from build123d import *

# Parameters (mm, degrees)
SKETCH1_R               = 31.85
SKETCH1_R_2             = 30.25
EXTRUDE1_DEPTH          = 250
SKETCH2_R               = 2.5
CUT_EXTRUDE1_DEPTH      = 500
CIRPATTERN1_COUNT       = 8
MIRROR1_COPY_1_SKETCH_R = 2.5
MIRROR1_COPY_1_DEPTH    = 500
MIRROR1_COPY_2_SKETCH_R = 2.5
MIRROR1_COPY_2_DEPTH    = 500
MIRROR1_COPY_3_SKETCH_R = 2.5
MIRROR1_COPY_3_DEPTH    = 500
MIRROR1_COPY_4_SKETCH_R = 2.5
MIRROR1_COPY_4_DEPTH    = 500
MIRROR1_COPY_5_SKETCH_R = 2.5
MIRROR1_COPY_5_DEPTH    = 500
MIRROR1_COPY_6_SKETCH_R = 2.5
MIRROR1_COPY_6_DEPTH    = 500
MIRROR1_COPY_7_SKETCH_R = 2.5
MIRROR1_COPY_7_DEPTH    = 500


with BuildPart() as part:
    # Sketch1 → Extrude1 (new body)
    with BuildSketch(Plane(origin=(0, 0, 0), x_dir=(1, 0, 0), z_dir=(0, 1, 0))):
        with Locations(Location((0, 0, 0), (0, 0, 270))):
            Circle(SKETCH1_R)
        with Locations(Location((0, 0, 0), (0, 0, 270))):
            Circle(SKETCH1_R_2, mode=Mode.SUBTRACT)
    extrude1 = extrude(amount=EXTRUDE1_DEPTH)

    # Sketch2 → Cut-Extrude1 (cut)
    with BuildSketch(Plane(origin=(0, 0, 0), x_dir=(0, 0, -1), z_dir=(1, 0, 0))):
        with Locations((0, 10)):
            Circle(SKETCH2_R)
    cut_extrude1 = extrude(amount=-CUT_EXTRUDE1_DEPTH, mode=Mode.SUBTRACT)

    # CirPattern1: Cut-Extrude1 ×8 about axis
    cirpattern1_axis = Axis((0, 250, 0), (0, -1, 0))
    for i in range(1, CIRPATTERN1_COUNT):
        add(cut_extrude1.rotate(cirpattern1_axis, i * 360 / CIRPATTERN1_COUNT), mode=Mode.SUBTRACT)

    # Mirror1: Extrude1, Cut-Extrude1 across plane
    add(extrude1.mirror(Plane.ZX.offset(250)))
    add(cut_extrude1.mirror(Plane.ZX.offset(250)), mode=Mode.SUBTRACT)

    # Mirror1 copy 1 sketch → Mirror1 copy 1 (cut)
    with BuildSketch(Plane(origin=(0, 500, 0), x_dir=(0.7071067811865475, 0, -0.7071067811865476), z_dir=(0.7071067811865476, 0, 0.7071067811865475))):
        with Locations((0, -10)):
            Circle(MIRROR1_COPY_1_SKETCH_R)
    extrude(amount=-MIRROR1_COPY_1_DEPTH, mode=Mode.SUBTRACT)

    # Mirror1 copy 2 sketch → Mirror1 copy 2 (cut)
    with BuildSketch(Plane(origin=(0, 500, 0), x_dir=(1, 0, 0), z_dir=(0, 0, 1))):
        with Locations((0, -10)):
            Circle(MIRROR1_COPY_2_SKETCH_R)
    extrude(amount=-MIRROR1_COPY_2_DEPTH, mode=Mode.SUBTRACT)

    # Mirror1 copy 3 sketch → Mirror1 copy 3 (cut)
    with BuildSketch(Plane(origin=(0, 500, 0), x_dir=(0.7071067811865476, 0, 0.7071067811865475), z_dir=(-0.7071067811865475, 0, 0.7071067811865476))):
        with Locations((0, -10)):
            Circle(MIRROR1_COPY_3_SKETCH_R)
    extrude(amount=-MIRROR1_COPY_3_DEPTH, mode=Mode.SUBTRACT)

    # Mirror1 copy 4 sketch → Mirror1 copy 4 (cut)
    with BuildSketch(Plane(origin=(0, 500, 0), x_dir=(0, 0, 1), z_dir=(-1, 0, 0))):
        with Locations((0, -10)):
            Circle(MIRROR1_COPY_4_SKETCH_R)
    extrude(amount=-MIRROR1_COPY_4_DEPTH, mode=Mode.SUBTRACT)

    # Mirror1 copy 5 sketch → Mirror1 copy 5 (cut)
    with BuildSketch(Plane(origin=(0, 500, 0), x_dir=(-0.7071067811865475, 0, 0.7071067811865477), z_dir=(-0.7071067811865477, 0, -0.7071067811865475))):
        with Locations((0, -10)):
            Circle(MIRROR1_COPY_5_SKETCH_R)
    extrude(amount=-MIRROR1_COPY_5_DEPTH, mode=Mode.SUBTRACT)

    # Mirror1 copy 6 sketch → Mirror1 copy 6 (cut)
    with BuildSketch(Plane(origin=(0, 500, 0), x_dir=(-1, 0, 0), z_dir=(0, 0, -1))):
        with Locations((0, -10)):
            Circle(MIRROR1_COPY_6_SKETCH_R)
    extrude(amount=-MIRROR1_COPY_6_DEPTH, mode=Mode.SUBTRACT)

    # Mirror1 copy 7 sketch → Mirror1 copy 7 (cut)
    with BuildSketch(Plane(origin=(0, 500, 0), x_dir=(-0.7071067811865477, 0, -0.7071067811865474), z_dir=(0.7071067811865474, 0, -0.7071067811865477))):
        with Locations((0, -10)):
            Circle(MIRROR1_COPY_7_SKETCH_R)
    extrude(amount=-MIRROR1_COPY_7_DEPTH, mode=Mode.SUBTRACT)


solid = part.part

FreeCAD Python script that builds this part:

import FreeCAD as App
import Part
import Sketcher

V = App.Vector
Q = App.Units.Quantity

doc = App.newDocument("Part")
body = doc.addObject("PartDesign::Body", "Body")

# Sketch on XZ plane
sketch1 = doc.addObject("Sketcher::SketchObject", "Sketch")
body.addObject(sketch1)
sketch1.AttachmentSupport = (doc.XZ_Plane, [""])
sketch1.MapMode = "FlatFace"
sketch1.addGeometry([
    Part.Circle(V(0, 0, 0), V(0, 0, 1), 32),
    Part.Circle(V(0, 0, 0), V(0, 0, 1), 30),
], False)
sketch1.addConstraint([
    Sketcher.Constraint("Coincident", 0, 3, -1, 1),
    Sketcher.Constraint("Coincident", 1, 3, -1, 1),
    Sketcher.Constraint("Diameter", 0, Q("63.7 mm")),
    Sketcher.Constraint("Diameter", 1, Q("60.5 mm")),
])
pad1 = doc.addObject("PartDesign::Pad", "Pad")
body.addObject(pad1)
pad1.Profile = sketch1
pad1.Length = 250
pad1.Reversed = True

# Sketch on YZ plane
sketch2 = doc.addObject("Sketcher::SketchObject", "Sketch001")
body.addObject(sketch2)
sketch2.AttachmentSupport = (doc.YZ_Plane, [""])
sketch2.MapMode = "FlatFace"
sketch2.addGeometry(Part.Circle(V(10, 0, 0), V(0, 0, 1), 2.5), False)
sketch2.addConstraint([
    Sketcher.Constraint("PointOnObject", 0, 3, -1),
    Sketcher.Constraint("Diameter", 0, Q("5 mm")),
    Sketcher.Constraint("DistanceX", -1, 1, 0, 3, Q("10 mm")),
])
pocket1 = doc.addObject("PartDesign::Pocket", "Pocket")
body.addObject(pocket1)
pocket1.Profile = sketch2
pocket1.Length = 500
doc.recompute()

polarpattern = doc.addObject("PartDesign::PolarPattern", "PolarPattern")
body.addObject(polarpattern)
polarpattern.Originals = [pocket1]
polarpattern.Axis = (doc.Y_Axis, [""])
polarpattern.Angle = 360
polarpattern.Occurrences = 8
body.Tip = polarpattern
doc.recompute()

datumplane = doc.addObject("PartDesign::Plane", "DatumPlane")
body.addObject(datumplane)
datumplane.AttachmentSupport = (doc.XZ_Plane, [""])
datumplane.MapMode = "FlatFace"
datumplane.AttachmentOffset = App.Placement(V(0, 0, -250), App.Rotation())
mirrored = doc.addObject("PartDesign::Mirrored", "Mirrored")
body.addObject(mirrored)
mirrored.Originals = [pad1, pocket1]
mirrored.MirrorPlane = (datumplane, [""])
body.Tip = mirrored

# Sketch on an angled plane
sketch3 = doc.addObject("Sketcher::SketchObject", "Sketch002")
body.addObject(sketch3)
sketch3.Placement = App.Placement(V(0, 500, 0), App.Rotation(V(0.707106781, 0, -0.707106781), V(0, 0.999999999, 0), V(0.707106781, 0, 0.707106781), "ZXY"))
sketch3.addGeometry(Part.Circle(V(0, -10, 0), V(0, 0, 1), 2.5), False)
sketch3.addConstraint([
    Sketcher.Constraint("PointOnObject", 0, 3, -2),
    Sketcher.Constraint("Diameter", 0, Q("5 mm")),
    Sketcher.Constraint("DistanceY", 0, 3, -1, 1, Q("10 mm")),
])
pocket2 = doc.addObject("PartDesign::Pocket", "Pocket001")
body.addObject(pocket2)
pocket2.Profile = sketch3
pocket2.Length = 500

# Sketch on XY plane
sketch4 = doc.addObject("Sketcher::SketchObject", "Sketch003")
body.addObject(sketch4)
sketch4.AttachmentSupport = (doc.XY_Plane, [""])
sketch4.MapMode = "FlatFace"
sketch4.addGeometry(Part.Circle(V(0, 490, 0), V(0, 0, 1), 2.5), False)
sketch4.addConstraint([
    Sketcher.Constraint("PointOnObject", 0, 3, -2),
    Sketcher.Constraint("Diameter", 0, Q("5 mm")),
    Sketcher.Constraint("DistanceY", -1, 1, 0, 3, Q("490 mm")),
])
pocket3 = doc.addObject("PartDesign::Pocket", "Pocket002")
body.addObject(pocket3)
pocket3.Profile = sketch4
pocket3.Length = 500

# Sketch on an angled plane
sketch5 = doc.addObject("Sketcher::SketchObject", "Sketch004")
body.addObject(sketch5)
sketch5.Placement = App.Placement(V(0, 500, 0), App.Rotation(V(0.707106781, 0, 0.707106781), V(0, 0.999999999, 0), V(-0.707106781, 0, 0.707106781), "ZXY"))
sketch5.addGeometry(Part.Circle(V(0, -10, 0), V(0, 0, 1), 2.5), False)
sketch5.addConstraint([
    Sketcher.Constraint("PointOnObject", 0, 3, -2),
    Sketcher.Constraint("Diameter", 0, Q("5 mm")),
    Sketcher.Constraint("DistanceY", 0, 3, -1, 1, Q("10 mm")),
])
pocket4 = doc.addObject("PartDesign::Pocket", "Pocket003")
body.addObject(pocket4)
pocket4.Profile = sketch5
pocket4.Length = 500

# Sketch on YZ plane
sketch6 = doc.addObject("Sketcher::SketchObject", "Sketch005")
body.addObject(sketch6)
sketch6.AttachmentSupport = (doc.YZ_Plane, [""])
sketch6.MapMode = "FlatFace"
sketch6.addGeometry(Part.Circle(V(490, 0, 0), V(0, 0, 1), 2.5), False)
sketch6.addConstraint([
    Sketcher.Constraint("PointOnObject", 0, 3, -1),
    Sketcher.Constraint("Diameter", 0, Q("5 mm")),
    Sketcher.Constraint("DistanceX", -1, 1, 0, 3, Q("490 mm")),
])
pocket5 = doc.addObject("PartDesign::Pocket", "Pocket004")
body.addObject(pocket5)
pocket5.Profile = sketch6
pocket5.Length = 500
pocket5.Reversed = True

# Sketch on an angled plane
sketch7 = doc.addObject("Sketcher::SketchObject", "Sketch006")
body.addObject(sketch7)
sketch7.Placement = App.Placement(V(0, 500, 0), App.Rotation(V(-0.707106781, 0, 0.707106781), V(0, 0.999999999, 0), V(-0.707106781, 0, -0.707106781), "ZXY"))
sketch7.addGeometry(Part.Circle(V(0, -10, 0), V(0, 0, 1), 2.5), False)
sketch7.addConstraint([
    Sketcher.Constraint("PointOnObject", 0, 3, -2),
    Sketcher.Constraint("Diameter", 0, Q("5 mm")),
    Sketcher.Constraint("DistanceY", 0, 3, -1, 1, Q("10 mm")),
])
pocket6 = doc.addObject("PartDesign::Pocket", "Pocket005")
body.addObject(pocket6)
pocket6.Profile = sketch7
pocket6.Length = 500

# Sketch on XY plane
sketch8 = doc.addObject("Sketcher::SketchObject", "Sketch007")
body.addObject(sketch8)
sketch8.AttachmentSupport = (doc.XY_Plane, [""])
sketch8.MapMode = "FlatFace"
sketch8.addGeometry(Part.Circle(V(0, 490, 0), V(0, 0, 1), 2.5), False)
sketch8.addConstraint([
    Sketcher.Constraint("PointOnObject", 0, 3, -2),
    Sketcher.Constraint("Diameter", 0, Q("5 mm")),
    Sketcher.Constraint("DistanceY", -1, 1, 0, 3, Q("490 mm")),
])
pocket7 = doc.addObject("PartDesign::Pocket", "Pocket006")
body.addObject(pocket7)
pocket7.Profile = sketch8
pocket7.Length = 500
pocket7.Reversed = True

# Sketch on an angled plane
sketch9 = doc.addObject("Sketcher::SketchObject", "Sketch008")
body.addObject(sketch9)
sketch9.Placement = App.Placement(V(0, 500, 0), App.Rotation(V(-0.707106781, 0, -0.707106781), V(0, 0.999999999, 0), V(0.707106781, 0, -0.707106781), "ZXY"))
sketch9.addGeometry(Part.Circle(V(0, -10, 0), V(0, 0, 1), 2.5), False)
sketch9.addConstraint([
    Sketcher.Constraint("PointOnObject", 0, 3, -2),
    Sketcher.Constraint("Diameter", 0, Q("5 mm")),
    Sketcher.Constraint("DistanceY", 0, 3, -1, 1, Q("10 mm")),
])
pocket8 = doc.addObject("PartDesign::Pocket", "Pocket007")
body.addObject(pocket8)
pocket8.Profile = sketch9
pocket8.Length = 500

doc.recompute()
